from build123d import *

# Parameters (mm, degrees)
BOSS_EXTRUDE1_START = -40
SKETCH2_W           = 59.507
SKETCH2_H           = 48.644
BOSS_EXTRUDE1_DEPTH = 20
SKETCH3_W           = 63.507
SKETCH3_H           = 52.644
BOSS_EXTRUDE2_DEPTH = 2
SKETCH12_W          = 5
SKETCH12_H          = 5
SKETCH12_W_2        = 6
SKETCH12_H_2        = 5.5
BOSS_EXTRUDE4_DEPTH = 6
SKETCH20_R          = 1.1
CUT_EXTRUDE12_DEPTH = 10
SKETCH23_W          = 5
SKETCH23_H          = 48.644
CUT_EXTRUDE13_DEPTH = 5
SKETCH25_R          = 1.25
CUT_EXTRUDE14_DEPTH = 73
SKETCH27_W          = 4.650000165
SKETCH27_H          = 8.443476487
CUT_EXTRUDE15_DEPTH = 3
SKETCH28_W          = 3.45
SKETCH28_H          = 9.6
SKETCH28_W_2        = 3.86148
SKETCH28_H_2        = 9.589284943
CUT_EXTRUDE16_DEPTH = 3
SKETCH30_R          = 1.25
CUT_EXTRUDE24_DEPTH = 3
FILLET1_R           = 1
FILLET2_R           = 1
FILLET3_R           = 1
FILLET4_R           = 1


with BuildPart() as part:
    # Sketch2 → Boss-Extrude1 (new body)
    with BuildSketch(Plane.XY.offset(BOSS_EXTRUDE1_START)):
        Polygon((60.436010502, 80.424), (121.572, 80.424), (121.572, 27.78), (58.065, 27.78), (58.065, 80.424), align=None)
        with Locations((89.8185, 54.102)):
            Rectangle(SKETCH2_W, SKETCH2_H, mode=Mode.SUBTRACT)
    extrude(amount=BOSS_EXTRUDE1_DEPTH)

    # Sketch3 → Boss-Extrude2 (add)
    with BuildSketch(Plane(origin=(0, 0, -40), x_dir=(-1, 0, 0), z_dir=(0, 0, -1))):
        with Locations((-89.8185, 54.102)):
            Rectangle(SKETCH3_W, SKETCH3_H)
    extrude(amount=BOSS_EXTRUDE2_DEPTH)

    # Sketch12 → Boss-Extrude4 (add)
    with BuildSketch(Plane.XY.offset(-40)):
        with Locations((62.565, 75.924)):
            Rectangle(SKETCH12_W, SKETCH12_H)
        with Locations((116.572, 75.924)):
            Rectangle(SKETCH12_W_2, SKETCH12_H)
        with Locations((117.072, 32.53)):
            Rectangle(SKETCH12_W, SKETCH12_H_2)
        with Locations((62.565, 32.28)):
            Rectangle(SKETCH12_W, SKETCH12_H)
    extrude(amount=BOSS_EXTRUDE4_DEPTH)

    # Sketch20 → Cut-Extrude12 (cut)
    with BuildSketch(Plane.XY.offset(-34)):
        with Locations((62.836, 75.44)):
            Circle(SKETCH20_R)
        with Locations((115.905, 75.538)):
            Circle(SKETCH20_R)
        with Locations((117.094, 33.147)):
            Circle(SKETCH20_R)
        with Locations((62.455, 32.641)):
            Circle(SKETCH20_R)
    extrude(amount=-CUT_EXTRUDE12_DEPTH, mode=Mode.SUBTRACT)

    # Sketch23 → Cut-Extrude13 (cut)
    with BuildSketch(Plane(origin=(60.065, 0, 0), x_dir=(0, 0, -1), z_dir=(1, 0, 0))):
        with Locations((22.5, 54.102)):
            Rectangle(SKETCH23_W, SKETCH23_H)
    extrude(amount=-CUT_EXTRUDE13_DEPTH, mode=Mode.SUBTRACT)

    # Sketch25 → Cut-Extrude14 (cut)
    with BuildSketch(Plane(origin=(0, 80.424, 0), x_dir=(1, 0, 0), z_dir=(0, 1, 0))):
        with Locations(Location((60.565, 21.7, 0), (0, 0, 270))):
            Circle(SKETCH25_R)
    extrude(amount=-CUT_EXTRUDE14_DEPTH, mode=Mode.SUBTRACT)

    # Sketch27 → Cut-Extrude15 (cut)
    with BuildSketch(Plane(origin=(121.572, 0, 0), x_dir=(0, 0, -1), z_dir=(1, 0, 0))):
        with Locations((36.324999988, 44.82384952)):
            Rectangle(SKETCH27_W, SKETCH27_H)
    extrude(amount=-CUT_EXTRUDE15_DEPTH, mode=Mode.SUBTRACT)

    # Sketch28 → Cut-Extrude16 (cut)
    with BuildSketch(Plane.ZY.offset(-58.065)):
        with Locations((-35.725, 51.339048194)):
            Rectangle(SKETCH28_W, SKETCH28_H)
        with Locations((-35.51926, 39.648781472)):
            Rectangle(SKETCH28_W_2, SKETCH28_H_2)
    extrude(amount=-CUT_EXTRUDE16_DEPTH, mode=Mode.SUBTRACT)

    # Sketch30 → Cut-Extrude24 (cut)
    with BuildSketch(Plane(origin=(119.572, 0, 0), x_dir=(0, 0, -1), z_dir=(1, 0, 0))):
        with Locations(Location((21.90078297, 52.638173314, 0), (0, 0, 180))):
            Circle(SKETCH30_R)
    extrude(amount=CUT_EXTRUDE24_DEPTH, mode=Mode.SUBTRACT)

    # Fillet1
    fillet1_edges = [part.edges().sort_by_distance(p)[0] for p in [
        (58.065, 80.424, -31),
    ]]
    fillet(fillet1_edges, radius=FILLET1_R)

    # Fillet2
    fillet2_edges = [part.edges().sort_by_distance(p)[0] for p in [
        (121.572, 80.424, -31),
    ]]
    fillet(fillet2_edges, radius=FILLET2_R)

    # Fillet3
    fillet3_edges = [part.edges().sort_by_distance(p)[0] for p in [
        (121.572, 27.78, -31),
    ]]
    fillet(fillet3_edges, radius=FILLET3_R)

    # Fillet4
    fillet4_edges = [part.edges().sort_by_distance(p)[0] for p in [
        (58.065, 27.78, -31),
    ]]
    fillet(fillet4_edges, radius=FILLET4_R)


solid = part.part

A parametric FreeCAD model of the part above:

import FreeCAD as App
import Part
import Sketcher
Q = App.Units.Quantity


def edges_at(feature, points):
    """Names of the edges that pass closest to the given points."""
    edges = feature.Shape.Edges
    near = lambda p: min(range(len(edges)), key=lambda i: edges[i].distToShape(Part.Vertex(*p))[0])
    return sorted({f"Edge{near(p) + 1}" for p in points})


def add_polygon(sketch, points):
    """Adds a closed chain of lines whose ends are joined by coincident constraints."""
    first, n = sketch.GeometryCount, len(points)
    for a, b in zip(points, points[1:] + points[:1]):
        sketch.addGeometry(Part.LineSegment(App.Vector(*a, 0), App.Vector(*b, 0)), False)
    for i in range(n):
        sketch.addConstraint(Sketcher.Constraint("Coincident", first + i, 2, first + (i + 1) % n, 1))

doc = App.newDocument("Part")
params = doc.addObject("Spreadsheet::Sheet", "Params")
for row, (alias, value) in enumerate([
    ("pad1_length", "20 mm"),
    ("pad2_length", "2 mm"),
    ("sketch3_width", "5 mm"),
    ("sketch3_width2", "6 mm"),
    ("sketch3_height", "5.5 mm"),
    ("pad3_length", "6 mm"),
    ("sketch4_diameter", "2.2 mm"),
    ("pocket1_length", "10 mm"),
    ("sketch5_height", "5 mm"),
    ("pocket2_length", "5 mm"),
    ("sketch6_diameter", "2.5 mm"),
    ("pocket3_length", "73 mm"),
    ("sketch7_height", "4.65 mm"),
    ("pocket4_length", "3 mm"),
    ("sketch8_width", "9.6 mm"),
    ("sketch8_height", "3.45 mm"),
    ("pocket5_length", "3 mm"),
    ("sketch9_diameter", "2.5 mm"),
    ("pocket6_length", "3 mm"),
    ("fillet_radius", "1 mm"),
    ("fillet2_radius", "1 mm"),
    ("fillet3_radius", "1 mm"),
    ("fillet4_radius", "1 mm"),
], start=1):
    params.set(f"A{row}", alias)
    params.set(f"B{row}", "=" + value)
    params.setAlias(f"B{row}", alias)

body = doc.addObject("PartDesign::Body", "Body")

sketch1 = body.newObject("Sketcher::SketchObject", "Sketch")
sketch1.AttachmentSupport = (doc.getObject("XY_Plane"), [""])
sketch1.MapMode = "FlatFace"
sketch1.AttachmentOffset = App.Placement(App.Vector(0, 0, -40), App.Rotation())
add_polygon(sketch1, [(121.572, 80.424), (58.065, 80.424), (58.065, 27.78), (121.572, 27.78)])
add_polygon(sketch1, [(60.065, 29.78), (60.065, 78.424), (119.572, 78.424), (119.572, 29.78)])
sketch1.addConstraint([
    Sketcher.Constraint("Horizontal", 0),
    Sketcher.Constraint("Vertical", 1),
    Sketcher.Constraint("Horizontal", 2),
    Sketcher.Constraint("Vertical", 3),
    Sketcher.Constraint("Vertical", 4),
    Sketcher.Constraint("Horizontal", 5),
    Sketcher.Constraint("Vertical", 6),
    Sketcher.Constraint("Horizontal", 7),
    Sketcher.Constraint("DistanceX", 0, 2, 4, 2, Q("2 mm")),
    Sketcher.Constraint("DistanceY", 4, 2, 0, 2, Q("2 mm")),
    Sketcher.Constraint("DistanceX", 5, 2, 3, 2, Q("2 mm")),
    Sketcher.Constraint("DistanceY", 2, 2, 6, 2, Q("2 mm")),
    Sketcher.Constraint("DistanceX", 0, 2, 0, 1, Q("63.507 mm")),
    Sketcher.Constraint("DistanceY", 1, 2, 1, 1, Q("52.644 mm")),
    Sketcher.Constraint("DistanceY", -1, 1, 1, 2, Q("27.78 mm")),
    Sketcher.Constraint("DistanceX", -1, 1, 0, 2, Q("58.065 mm")),
])
pad1 = body.newObject("PartDesign::Pad", "Pad")
pad1.Profile = sketch1
pad1.setExpression("Length", "Params.pad1_length")

sketch2 = body.newObject("Sketcher::SketchObject", "Sketch001")
sketch2.AttachmentSupport = (doc.getObject("XY_Plane"), [""])
sketch2.MapMode = "FlatFace"
sketch2.AttachmentOffset = App.Placement(App.Vector(0, 0, -40), App.Rotation())
add_polygon(sketch2, [(121.572, 80.424), (121.572, 27.78), (58.065, 27.78), (58.065, 80.424)])
sketch2.addConstraint([
    Sketcher.Constraint("Vertical", 0),
    Sketcher.Constraint("Horizontal", 1),
    Sketcher.Constraint("Vertical", 2),
    Sketcher.Constraint("Horizontal", 3),
    Sketcher.Constraint("DistanceX", 1, 2, 1, 1, Q("63.507 mm")),
    Sketcher.Constraint("DistanceY", 0, 2, 0, 1, Q("52.644 mm")),
    Sketcher.Constraint("DistanceY", -1, 1, 0, 2, Q("27.78 mm")),
    Sketcher.Constraint("DistanceX", -1, 1, 0, 2, Q("121.572 mm")),
])
pad2 = body.newObject("PartDesign::Pad", "Pad001")
pad2.Profile = sketch2
pad2.setExpression("Length", "Params.pad2_length")
pad2.Reversed = True

sketch3 = body.newObject("Sketcher::SketchObject", "Sketch002")
sketch3.AttachmentSupport = (doc.getObject("XY_Plane"), [""])
sketch3.MapMode = "FlatFace"
sketch3.AttachmentOffset = App.Placement(App.Vector(0, 0, -40), App.Rotation())
add_polygon(sketch3, [(60.065, 78.424), (60.065, 73.424), (65.065, 73.424), (65.065, 78.424)])
add_polygon(sketch3, [(113.572, 78.424), (113.572, 73.424), (119.572, 73.424), (119.572, 78.424)])
add_polygon(sketch3, [(114.572, 35.28), (114.572, 29.78), (119.572, 29.78), (119.572, 35.28)])
add_polygon(sketch3, [(60.065, 34.78), (60.065, 29.78), (65.065, 29.78), (65.065, 34.78)])
sketch3.addConstraint([
    Sketcher.Constraint("Vertical", 0),
    Sketcher.Constraint("Horizontal", 1),
    Sketcher.Constraint("Vertical", 2),
    Sketcher.Constraint("Horizontal", 3),
    Sketcher.Constraint("Vertical", 4),
    Sketcher.Constraint("Horizontal", 5),
    Sketcher.Constraint("Vertical", 6),
    Sketcher.Constraint("Horizontal", 7),
    Sketcher.Constraint("Vertical", 8),
    Sketcher.Constraint("Horizontal", 9),
    Sketcher.Constraint("Vertical", 10),
    Sketcher.Constraint("Horizontal", 11),
    Sketcher.Constraint("Vertical", 12),
    Sketcher.Constraint("Horizontal", 13),
    Sketcher.Constraint("Vertical", 14),
    Sketcher.Constraint("Horizontal", 15),
    Sketcher.Constraint("Horizontal", 1, 2, 4, 2),
    Sketcher.Constraint("Horizontal", 3, 2, 6, 2),
    Sketcher.Constraint("Horizontal", 9, 2, 12, 2),
    Sketcher.Constraint("Vertical", 6, 2, 9, 2),
    Sketcher.Constraint("Vertical", 3, 2, 12, 2),
    Sketcher.Constraint("Vertical", 2, 2, 13, 2),
    Sketcher.Constraint("Equal", 3, 9),
    Sketcher.Constraint("Equal", 15, 0),
    Sketcher.Constraint("Equal", 6, 12),
    Sketcher.Constraint("DistanceX", 1, 1, 1, 2, Q("5 mm")),
    Sketcher.Constraint("DistanceX", 5, 1, 5, 2, Q("6 mm")),
    Sketcher.Constraint("DistanceY", 8, 2, 8, 1, Q("5.5 mm")),
    Sketcher.Constraint("DistanceY", -1, 1, 8, 2, Q("29.78 mm")),
    Sketcher.Constraint("DistanceX", -1, 1, 0, 2, Q("60.065 mm")),
    Sketcher.Constraint("DistanceY", -1, 1, 0, 2, Q("73.424 mm")),
    Sketcher.Constraint("DistanceX", -1, 1, 4, 2, Q("113.572 mm")),
])
sketch3.setExpression("Constraints[41]", "Params.sketch3_width")
sketch3.setExpression("Constraints[42]", "Params.sketch3_width2")
sketch3.setExpression("Constraints[43]", "Params.sketch3_height")
pad3 = body.newObject("PartDesign::Pad", "Pad002")
pad3.Profile = sketch3
pad3.setExpression("Length", "Params.pad3_length")

sketch4 = body.newObject("Sketcher::SketchObject", "Sketch003")
sketch4.AttachmentSupport = (doc.getObject("XY_Plane"), [""])
sketch4.MapMode = "FlatFace"
sketch4.AttachmentOffset = App.Placement(App.Vector(0, 0, -34), App.Rotation())
sketch4.addGeometry([
    Part.Circle(App.Vector(62.836, 75.44, 0), App.Vector(0, 0, 1), 1.1),
    Part.Circle(App.Vector(115.905, 75.538, 0), App.Vector(0, 0, 1), 1.1),
    Part.Circle(App.Vector(117.094, 33.147, 0), App.Vector(0, 0, 1), 1.1),
    Part.Circle(App.Vector(62.455, 32.641, 0), App.Vector(0, 0, 1), 1.1),
], False)
sketch4.addConstraint([
    Sketcher.Constraint("Equal", 0, 1),
    Sketcher.Constraint("Equal", 1, 2),
    Sketcher.Constraint("Equal", 2, 3),
    Sketcher.Constraint("Diameter", 0, Q("2.2 mm")),
    Sketcher.Constraint("DistanceY", -1, 1, 0, 3, Q("75.44 mm")),
    Sketcher.Constraint("DistanceX", 3, 3, 1, 3, Q("53.45 mm")),
    Sketcher.Constraint("DistanceX", -1, 1, 0, 3, Q("62.836 mm")),
    Sketcher.Constraint("DistanceX", -1, 1, 1, 3, Q("115.905 mm")),
    Sketcher.Constraint("DistanceY", -1, 1, 1, 3, Q("75.538 mm")),
    Sketcher.Constraint("DistanceX", -1, 1, 2, 3, Q("117.094 mm")),
    Sketcher.Constraint("DistanceY", -1, 1, 2, 3, Q("33.147 mm")),
    Sketcher.Constraint("DistanceY", -1, 1, 3, 3, Q("32.641 mm")),
])
sketch4.setExpression("Constraints[3]", "Params.sketch4_diameter")
pocket1 = body.newObject("PartDesign::Pocket", "Pocket")
pocket1.Profile = sketch4
pocket1.setExpression("Length", "Params.pocket1_length")

sketch5 = body.newObject("Sketcher::SketchObject", "Sketch004")
sketch5.AttachmentSupport = (doc.getObject("YZ_Plane"), [""])
sketch5.MapMode = "FlatFace"
sketch5.AttachmentOffset = App.Placement(App.Vector(0, 0, 60.065), App.Rotation())
add_polygon(sketch5, [(78.424, -20), (29.78, -20), (29.78, -25), (78.424, -25)])
sketch5.addConstraint([
    Sketcher.Constraint("Horizontal", 0),
    Sketcher.Constraint("Vertical", 1),
    Sketcher.Constraint("Horizontal", 2),
    Sketcher.Constraint("Vertical", 3),
    Sketcher.Constraint("DistanceY", 1, 2, 1, 1, Q("5 mm")),
    Sketcher.Constraint("DistanceY", 0, 2, -1, 1, Q("20 mm")),
    Sketcher.Constraint("DistanceX", 0, 2, 0, 1, Q("48.644 mm")),
    Sketcher.Constraint("DistanceX", -1, 1, 0, 2, Q("29.78 mm")),
])
sketch5.setExpression("Constraints[8]", "Params.sketch5_height")
pocket2 = body.newObject("PartDesign::Pocket", "Pocket001")
pocket2.Profile = sketch5
pocket2.setExpression("Length", "Params.pocket2_length")

sketch6 = body.newObject("Sketcher::SketchObject", "Sketch005")
sketch6.AttachmentSupport = (doc.getObject("XZ_Plane"), [""])
sketch6.MapMode = "FlatFace"
sketch6.AttachmentOffset = App.Placement(App.Vector(0, 0, -80.424), App.Rotation())
sketch6.addGeometry(Part.Circle(App.Vector(60.565, -21.7, 0), App.Vector(0, 0, 1), 1.25), False)
sketch6.addConstraint([
    Sketcher.Constraint("Diameter", 0, Q("2.5 mm")),
    Sketcher.Constraint("DistanceY", 0, 3, -1, 1, Q("21.7 mm")),
    Sketcher.Constraint("DistanceX", -1, 1, 0, 3, Q("60.565 mm")),
])
sketch6.setExpression("Constraints[0]", "Params.sketch6_diameter")
pocket3 = body.newObject("PartDesign::Pocket", "Pocket002")
pocket3.Profile = sketch6
pocket3.setExpression("Length", "Params.pocket3_length")
pocket3.Reversed = True

sketch7 = body.newObject("Sketcher::SketchObject", "Sketch006")
sketch7.AttachmentSupport = (doc.getObject("YZ_Plane"), [""])
sketch7.MapMode = "FlatFace"
sketch7.AttachmentOffset = App.Placement(App.Vector(0, 0, 121.572), App.Rotation())
add_polygon(sketch7, [(49.045588, -34), (40.602111, -34), (40.602111, -38.65), (49.045588, -38.65)])
sketch7.addConstraint([
    Sketcher.Constraint("Horizontal", 0),
    Sketcher.Constraint("Vertical", 1),
    Sketcher.Constraint("Horizontal", 2),
    Sketcher.Constraint("Vertical", 3),
    Sketcher.Constraint("DistanceY", 0, 2, -1, 1, Q("34 mm")),
    Sketcher.Constraint("DistanceY", 1, 2, 1, 1, Q("4.65 mm")),
    Sketcher.Constraint("DistanceX", 0, 2, 0, 1, Q("8.443476 mm")),
    Sketcher.Constraint("DistanceX", -1, 1, 0, 2, Q("40.602111 mm")),
])
sketch7.setExpression("Constraints[9]", "Params.sketch7_height")
pocket4 = body.newObject("PartDesign::Pocket", "Pocket003")
pocket4.Profile = sketch7
pocket4.setExpression("Length", "Params.pocket4_length")

sketch8 = body.newObject("Sketcher::SketchObject", "Sketch007")
sketch8.AttachmentSupport = (doc.getObject("YZ_Plane"), [""])
sketch8.MapMode = "FlatFace"
sketch8.AttachmentOffset = App.Placement(App.Vector(0, 0, 58.065), App.Rotation())
add_polygon(sketch8, [(56.139048, -37.45), (46.539048, -37.45), (46.539048, -34), (56.139048, -34)])
add_polygon(sketch8, [(44.443424, -37.45), (34.854139, -37.45), (34.854139, -33.58852), (44.443424, -33.58852)])
sketch8.addConstraint([
    Sketcher.Constraint("Horizontal", 0),
    Sketcher.Constraint("Vertical", 1),
    Sketcher.Constraint("Horizontal", 2),
    Sketcher.Constraint("Vertical", 3),
    Sketcher.Constraint("Horizontal", 4),
    Sketcher.Constraint("Vertical", 5),
    Sketcher.Constraint("Horizontal", 6),
    Sketcher.Constraint("Vertical", 7),
    Sketcher.Constraint("Horizontal", 3, 2, 4, 2),
    Sketcher.Constraint("DistanceX", 0, 2, 0, 1, Q("9.6 mm")),
    Sketcher.Constraint("DistanceY", 1, 2, -1, 1, Q("34 mm")),
    Sketcher.Constraint("DistanceY", 1, 1, 1, 2, Q("3.45 mm")),
    Sketcher.Constraint("DistanceY", 5, 1, 5, 2, Q("3.86148 mm")),
    Sketcher.Constraint("DistanceX", 4, 2, 4, 1, Q("9.589285 mm")),
    Sketcher.Constraint("DistanceX", -1, 1, 0, 2, Q("46.539048 mm")),
    Sketcher.Constraint("DistanceX", -1, 1, 4, 2, Q("34.854139 mm")),
])
sketch8.setExpression("Constraints[17]", "Params.sketch8_width")
sketch8.setExpression("Constraints[19]", "Params.sketch8_height")
pocket5 = body.newObject("PartDesign::Pocket", "Pocket004")
pocket5.Profile = sketch8
pocket5.setExpression("Length", "Params.pocket5_length")
pocket5.Reversed = True

sketch9 = body.newObject("Sketcher::SketchObject", "Sketch008")
sketch9.AttachmentSupport = (doc.getObject("YZ_Plane"), [""])
sketch9.MapMode = "FlatFace"
sketch9.AttachmentOffset = App.Placement(App.Vector(0, 0, 119.572), App.Rotation())
sketch9.addGeometry(Part.Circle(App.Vector(52.638173, -21.900783, 0), App.Vector(0, 0, 1), 1.25), False)
sketch9.addConstraint([
    Sketcher.Constraint("Diameter", 0, Q("2.5 mm")),
    Sketcher.Constraint("DistanceX", -1, 1, 0, 3, Q("52.638173 mm")),
    Sketcher.Constraint("DistanceY", 0, 3, -1, 1, Q("21.900783 mm")),
])
sketch9.setExpression("Constraints[0]", "Params.sketch9_diameter")
pocket6 = body.newObject("PartDesign::Pocket", "Pocket005")
pocket6.Profile = sketch9
pocket6.setExpression("Length", "Params.pocket6_length")
pocket6.Reversed = True
doc.recompute()

fillet = body.newObject("PartDesign::Fillet", "Fillet")
fillet.Base = (pocket6, edges_at(pocket6, [(58.065, 80.424, -31)]))
fillet.setExpression("Radius", "Params.fillet_radius")
doc.recompute()

fillet2 = body.newObject("PartDesign::Fillet", "Fillet001")
fillet2.Base = (fillet, edges_at(fillet, [(121.572, 80.424, -31)]))
fillet2.setExpression("Radius", "Params.fillet2_radius")
doc.recompute()

fillet3 = body.newObject("PartDesign::Fillet", "Fillet002")
fillet3.Base = (fillet2, edges_at(fillet2, [(121.572, 27.78, -31)]))
fillet3.setExpression("Radius", "Params.fillet3_radius")
doc.recompute()

fillet4 = body.newObject("PartDesign::Fillet", "Fillet003")
fillet4.Base = (fillet3, edges_at(fillet3, [(58.065, 27.78, -31)]))
fillet4.setExpression("Radius", "Params.fillet4_radius")

doc.recompute()
